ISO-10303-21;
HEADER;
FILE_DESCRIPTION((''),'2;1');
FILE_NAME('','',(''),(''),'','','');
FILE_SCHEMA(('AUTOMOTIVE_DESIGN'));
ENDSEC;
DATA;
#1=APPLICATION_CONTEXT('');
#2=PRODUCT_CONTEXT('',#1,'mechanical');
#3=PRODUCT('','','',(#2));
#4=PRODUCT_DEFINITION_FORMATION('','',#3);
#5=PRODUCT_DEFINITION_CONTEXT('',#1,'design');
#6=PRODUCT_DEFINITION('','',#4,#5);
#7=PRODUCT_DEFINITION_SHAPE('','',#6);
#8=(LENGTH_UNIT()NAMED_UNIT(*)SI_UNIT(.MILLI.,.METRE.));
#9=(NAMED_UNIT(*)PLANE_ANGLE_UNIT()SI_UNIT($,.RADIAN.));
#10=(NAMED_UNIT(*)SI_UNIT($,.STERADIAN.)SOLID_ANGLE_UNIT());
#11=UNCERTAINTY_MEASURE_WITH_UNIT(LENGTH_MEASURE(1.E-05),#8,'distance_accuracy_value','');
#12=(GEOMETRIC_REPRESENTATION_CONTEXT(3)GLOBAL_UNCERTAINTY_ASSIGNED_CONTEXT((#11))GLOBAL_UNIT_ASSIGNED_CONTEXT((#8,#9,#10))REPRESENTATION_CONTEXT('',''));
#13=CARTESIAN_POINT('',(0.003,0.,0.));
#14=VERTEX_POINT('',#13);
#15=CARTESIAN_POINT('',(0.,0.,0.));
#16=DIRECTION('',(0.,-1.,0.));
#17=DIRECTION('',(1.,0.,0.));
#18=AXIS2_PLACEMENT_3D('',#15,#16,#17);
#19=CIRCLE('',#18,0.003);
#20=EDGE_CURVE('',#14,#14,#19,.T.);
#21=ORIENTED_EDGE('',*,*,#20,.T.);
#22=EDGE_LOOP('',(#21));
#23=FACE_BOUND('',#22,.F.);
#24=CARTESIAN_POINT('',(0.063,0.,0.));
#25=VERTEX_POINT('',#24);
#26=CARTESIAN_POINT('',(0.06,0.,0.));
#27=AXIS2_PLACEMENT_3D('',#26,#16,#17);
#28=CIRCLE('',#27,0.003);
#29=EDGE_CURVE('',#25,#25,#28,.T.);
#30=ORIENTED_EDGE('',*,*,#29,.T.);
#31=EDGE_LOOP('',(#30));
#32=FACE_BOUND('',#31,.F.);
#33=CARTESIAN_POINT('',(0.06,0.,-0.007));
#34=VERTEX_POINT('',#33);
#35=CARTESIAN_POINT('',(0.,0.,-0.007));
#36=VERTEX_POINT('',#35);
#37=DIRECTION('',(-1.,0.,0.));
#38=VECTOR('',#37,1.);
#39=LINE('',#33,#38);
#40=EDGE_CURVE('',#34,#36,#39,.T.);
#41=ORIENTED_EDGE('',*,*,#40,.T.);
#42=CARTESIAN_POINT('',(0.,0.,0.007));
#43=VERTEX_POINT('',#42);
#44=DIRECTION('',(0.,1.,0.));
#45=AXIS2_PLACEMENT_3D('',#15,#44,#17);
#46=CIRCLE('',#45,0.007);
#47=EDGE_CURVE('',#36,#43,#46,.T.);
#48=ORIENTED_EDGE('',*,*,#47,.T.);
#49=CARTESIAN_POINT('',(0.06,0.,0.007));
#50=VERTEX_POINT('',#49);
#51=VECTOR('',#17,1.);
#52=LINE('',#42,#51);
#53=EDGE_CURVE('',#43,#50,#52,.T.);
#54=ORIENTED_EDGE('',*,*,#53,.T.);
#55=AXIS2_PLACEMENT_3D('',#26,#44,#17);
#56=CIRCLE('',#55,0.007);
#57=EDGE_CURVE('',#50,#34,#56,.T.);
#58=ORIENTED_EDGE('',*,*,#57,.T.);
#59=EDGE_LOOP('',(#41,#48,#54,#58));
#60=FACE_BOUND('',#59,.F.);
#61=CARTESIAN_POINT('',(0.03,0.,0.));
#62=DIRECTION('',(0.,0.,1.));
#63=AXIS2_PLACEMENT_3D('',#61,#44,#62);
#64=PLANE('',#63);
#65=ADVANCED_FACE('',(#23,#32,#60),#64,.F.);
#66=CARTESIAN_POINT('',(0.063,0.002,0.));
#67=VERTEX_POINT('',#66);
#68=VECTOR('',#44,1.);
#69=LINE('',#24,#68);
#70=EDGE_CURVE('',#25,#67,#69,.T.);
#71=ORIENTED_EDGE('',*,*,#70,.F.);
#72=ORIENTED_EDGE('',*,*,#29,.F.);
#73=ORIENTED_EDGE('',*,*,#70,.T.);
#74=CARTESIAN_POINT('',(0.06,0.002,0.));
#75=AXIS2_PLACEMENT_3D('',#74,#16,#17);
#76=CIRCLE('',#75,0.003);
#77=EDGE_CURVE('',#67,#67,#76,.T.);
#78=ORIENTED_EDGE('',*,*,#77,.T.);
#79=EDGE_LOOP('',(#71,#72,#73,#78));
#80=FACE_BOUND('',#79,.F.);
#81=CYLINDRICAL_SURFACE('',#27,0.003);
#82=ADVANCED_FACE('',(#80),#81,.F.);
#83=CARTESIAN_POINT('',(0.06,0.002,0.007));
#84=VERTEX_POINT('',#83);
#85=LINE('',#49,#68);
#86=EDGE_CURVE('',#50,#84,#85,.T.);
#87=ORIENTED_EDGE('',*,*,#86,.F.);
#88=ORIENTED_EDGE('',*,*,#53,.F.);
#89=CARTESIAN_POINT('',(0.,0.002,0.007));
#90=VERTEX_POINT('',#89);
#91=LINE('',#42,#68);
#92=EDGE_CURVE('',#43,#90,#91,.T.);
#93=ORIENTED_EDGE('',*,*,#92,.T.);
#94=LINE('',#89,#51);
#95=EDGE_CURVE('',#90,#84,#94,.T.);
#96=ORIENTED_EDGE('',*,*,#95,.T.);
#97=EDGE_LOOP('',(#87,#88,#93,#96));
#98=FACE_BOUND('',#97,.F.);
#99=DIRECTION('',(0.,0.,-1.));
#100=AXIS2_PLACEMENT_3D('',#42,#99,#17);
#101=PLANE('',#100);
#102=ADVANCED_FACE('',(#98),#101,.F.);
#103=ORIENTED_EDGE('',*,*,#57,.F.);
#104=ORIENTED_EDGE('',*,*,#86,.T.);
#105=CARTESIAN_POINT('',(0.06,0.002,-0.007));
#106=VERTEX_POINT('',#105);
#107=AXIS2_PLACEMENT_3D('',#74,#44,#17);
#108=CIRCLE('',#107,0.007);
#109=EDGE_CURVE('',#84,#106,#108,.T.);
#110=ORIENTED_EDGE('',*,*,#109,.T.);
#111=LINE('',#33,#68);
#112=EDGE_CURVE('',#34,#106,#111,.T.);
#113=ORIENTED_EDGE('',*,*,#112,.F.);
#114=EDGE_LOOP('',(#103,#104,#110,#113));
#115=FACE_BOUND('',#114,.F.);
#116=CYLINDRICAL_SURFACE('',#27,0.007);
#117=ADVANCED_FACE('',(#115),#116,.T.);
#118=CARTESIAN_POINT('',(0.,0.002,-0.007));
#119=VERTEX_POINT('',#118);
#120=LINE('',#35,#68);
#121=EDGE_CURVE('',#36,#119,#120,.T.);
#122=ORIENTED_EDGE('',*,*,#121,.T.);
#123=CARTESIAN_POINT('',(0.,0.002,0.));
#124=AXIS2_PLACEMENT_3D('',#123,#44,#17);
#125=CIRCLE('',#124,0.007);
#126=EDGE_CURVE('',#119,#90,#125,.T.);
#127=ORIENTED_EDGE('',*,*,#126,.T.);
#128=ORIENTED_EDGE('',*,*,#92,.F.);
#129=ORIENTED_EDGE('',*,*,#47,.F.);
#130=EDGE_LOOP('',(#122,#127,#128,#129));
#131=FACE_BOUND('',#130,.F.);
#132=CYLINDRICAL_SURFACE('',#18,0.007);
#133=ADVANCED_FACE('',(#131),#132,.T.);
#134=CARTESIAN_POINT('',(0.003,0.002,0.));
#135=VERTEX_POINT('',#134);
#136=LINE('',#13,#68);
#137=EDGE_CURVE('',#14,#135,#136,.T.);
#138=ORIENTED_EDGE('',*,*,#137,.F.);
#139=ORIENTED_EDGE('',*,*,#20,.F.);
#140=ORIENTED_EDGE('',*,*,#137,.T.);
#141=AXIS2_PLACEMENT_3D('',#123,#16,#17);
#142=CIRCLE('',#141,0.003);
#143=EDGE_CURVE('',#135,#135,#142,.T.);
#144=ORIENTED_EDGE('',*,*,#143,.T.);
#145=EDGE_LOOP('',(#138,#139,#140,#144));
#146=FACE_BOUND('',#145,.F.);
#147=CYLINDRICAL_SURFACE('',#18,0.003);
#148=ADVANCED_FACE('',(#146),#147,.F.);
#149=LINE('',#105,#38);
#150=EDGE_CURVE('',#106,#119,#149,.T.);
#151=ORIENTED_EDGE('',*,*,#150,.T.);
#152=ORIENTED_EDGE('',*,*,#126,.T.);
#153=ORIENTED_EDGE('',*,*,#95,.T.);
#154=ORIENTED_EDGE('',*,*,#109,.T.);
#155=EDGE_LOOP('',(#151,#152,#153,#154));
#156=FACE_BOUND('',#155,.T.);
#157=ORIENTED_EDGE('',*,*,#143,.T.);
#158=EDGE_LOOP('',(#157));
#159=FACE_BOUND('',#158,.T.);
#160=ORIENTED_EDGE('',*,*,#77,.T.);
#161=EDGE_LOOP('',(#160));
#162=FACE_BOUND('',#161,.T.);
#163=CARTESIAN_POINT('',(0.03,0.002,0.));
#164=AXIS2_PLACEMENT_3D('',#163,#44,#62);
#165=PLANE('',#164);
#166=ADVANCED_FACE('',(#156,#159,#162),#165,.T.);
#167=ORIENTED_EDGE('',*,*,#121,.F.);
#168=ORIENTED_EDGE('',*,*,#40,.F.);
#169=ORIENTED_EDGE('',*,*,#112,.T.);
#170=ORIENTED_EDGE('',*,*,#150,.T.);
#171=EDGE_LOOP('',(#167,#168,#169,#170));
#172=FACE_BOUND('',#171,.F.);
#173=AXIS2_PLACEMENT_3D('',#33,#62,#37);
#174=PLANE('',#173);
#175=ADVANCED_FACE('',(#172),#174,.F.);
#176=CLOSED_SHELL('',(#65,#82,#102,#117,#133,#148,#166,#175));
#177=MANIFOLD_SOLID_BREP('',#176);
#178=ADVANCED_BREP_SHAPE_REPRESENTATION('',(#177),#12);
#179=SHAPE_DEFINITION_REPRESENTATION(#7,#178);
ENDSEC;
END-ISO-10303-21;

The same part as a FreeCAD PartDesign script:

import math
import FreeCAD as App
import Part
import Sketcher

doc = App.newDocument("Part")
body = doc.addObject("PartDesign::Body", "Body")

sketch1 = body.newObject("Sketcher::SketchObject", "Sketch")
sketch1.AttachmentSupport = (doc.getObject("XZ_Plane"), [""])
sketch1.MapMode = "FlatFace"
sketch1.addGeometry(Part.LineSegment(App.Vector(0.06, 0.007, 0), App.Vector(0, 0.007, 0)), False)
sketch1.addGeometry(Part.ArcOfCircle(Part.Circle(App.Vector(0, 0, 0), App.Vector(0, 0, 1), 0.007), math.radians(90), math.radians(270)), False)
sketch1.addGeometry(Part.LineSegment(App.Vector(0, -0.007, 0), App.Vector(0.06, -0.007, 0)), False)
sketch1.addGeometry(Part.ArcOfCircle(Part.Circle(App.Vector(0.06, 0, 0), App.Vector(0, 0, 1), 0.007), math.radians(-90), math.radians(90)), False)
sketch1.addGeometry(Part.Circle(App.Vector(0, 0, 0), App.Vector(0, 0, 1), 0.003), False)
sketch1.addGeometry(Part.Circle(App.Vector(0.06, 0, 0), App.Vector(0, 0, 1), 0.003), False)
sketch1.addConstraint(Sketcher.Constraint("Tangent", 0, 2, 1, 1))
sketch1.addConstraint(Sketcher.Constraint("Tangent", 1, 2, 2, 1))
sketch1.addConstraint(Sketcher.Constraint("Tangent", 2, 2, 3, 1))
sketch1.addConstraint(Sketcher.Constraint("Tangent", 3, 2, 0, 1))
sketch1.addConstraint(Sketcher.Constraint("Horizontal", 0))
sketch1.addConstraint(Sketcher.Constraint("Horizontal", 2))
sketch1.addConstraint(Sketcher.Constraint("Coincident", 1, 3, -1, 1))
sketch1.addConstraint(Sketcher.Constraint("Coincident", 4, 3, -1, 1))
sketch1.addConstraint(Sketcher.Constraint("Coincident", 5, 3, 3, 3))
sketch1.addConstraint(Sketcher.Constraint("Equal", 4, 5))
sketch1.addConstraint(Sketcher.Constraint("Diameter", 4, 0.006))
sketch1.addConstraint(Sketcher.Constraint("Radius", 1, 0.007))
sketch1.addConstraint(Sketcher.Constraint("DistanceX", 0, 2, 0, 1, 0.06))
pad1 = body.newObject("PartDesign::Pad", "Pad")
pad1.Profile = sketch1
pad1.Length = 0.002
pad1.Reversed = True

doc.recompute()
